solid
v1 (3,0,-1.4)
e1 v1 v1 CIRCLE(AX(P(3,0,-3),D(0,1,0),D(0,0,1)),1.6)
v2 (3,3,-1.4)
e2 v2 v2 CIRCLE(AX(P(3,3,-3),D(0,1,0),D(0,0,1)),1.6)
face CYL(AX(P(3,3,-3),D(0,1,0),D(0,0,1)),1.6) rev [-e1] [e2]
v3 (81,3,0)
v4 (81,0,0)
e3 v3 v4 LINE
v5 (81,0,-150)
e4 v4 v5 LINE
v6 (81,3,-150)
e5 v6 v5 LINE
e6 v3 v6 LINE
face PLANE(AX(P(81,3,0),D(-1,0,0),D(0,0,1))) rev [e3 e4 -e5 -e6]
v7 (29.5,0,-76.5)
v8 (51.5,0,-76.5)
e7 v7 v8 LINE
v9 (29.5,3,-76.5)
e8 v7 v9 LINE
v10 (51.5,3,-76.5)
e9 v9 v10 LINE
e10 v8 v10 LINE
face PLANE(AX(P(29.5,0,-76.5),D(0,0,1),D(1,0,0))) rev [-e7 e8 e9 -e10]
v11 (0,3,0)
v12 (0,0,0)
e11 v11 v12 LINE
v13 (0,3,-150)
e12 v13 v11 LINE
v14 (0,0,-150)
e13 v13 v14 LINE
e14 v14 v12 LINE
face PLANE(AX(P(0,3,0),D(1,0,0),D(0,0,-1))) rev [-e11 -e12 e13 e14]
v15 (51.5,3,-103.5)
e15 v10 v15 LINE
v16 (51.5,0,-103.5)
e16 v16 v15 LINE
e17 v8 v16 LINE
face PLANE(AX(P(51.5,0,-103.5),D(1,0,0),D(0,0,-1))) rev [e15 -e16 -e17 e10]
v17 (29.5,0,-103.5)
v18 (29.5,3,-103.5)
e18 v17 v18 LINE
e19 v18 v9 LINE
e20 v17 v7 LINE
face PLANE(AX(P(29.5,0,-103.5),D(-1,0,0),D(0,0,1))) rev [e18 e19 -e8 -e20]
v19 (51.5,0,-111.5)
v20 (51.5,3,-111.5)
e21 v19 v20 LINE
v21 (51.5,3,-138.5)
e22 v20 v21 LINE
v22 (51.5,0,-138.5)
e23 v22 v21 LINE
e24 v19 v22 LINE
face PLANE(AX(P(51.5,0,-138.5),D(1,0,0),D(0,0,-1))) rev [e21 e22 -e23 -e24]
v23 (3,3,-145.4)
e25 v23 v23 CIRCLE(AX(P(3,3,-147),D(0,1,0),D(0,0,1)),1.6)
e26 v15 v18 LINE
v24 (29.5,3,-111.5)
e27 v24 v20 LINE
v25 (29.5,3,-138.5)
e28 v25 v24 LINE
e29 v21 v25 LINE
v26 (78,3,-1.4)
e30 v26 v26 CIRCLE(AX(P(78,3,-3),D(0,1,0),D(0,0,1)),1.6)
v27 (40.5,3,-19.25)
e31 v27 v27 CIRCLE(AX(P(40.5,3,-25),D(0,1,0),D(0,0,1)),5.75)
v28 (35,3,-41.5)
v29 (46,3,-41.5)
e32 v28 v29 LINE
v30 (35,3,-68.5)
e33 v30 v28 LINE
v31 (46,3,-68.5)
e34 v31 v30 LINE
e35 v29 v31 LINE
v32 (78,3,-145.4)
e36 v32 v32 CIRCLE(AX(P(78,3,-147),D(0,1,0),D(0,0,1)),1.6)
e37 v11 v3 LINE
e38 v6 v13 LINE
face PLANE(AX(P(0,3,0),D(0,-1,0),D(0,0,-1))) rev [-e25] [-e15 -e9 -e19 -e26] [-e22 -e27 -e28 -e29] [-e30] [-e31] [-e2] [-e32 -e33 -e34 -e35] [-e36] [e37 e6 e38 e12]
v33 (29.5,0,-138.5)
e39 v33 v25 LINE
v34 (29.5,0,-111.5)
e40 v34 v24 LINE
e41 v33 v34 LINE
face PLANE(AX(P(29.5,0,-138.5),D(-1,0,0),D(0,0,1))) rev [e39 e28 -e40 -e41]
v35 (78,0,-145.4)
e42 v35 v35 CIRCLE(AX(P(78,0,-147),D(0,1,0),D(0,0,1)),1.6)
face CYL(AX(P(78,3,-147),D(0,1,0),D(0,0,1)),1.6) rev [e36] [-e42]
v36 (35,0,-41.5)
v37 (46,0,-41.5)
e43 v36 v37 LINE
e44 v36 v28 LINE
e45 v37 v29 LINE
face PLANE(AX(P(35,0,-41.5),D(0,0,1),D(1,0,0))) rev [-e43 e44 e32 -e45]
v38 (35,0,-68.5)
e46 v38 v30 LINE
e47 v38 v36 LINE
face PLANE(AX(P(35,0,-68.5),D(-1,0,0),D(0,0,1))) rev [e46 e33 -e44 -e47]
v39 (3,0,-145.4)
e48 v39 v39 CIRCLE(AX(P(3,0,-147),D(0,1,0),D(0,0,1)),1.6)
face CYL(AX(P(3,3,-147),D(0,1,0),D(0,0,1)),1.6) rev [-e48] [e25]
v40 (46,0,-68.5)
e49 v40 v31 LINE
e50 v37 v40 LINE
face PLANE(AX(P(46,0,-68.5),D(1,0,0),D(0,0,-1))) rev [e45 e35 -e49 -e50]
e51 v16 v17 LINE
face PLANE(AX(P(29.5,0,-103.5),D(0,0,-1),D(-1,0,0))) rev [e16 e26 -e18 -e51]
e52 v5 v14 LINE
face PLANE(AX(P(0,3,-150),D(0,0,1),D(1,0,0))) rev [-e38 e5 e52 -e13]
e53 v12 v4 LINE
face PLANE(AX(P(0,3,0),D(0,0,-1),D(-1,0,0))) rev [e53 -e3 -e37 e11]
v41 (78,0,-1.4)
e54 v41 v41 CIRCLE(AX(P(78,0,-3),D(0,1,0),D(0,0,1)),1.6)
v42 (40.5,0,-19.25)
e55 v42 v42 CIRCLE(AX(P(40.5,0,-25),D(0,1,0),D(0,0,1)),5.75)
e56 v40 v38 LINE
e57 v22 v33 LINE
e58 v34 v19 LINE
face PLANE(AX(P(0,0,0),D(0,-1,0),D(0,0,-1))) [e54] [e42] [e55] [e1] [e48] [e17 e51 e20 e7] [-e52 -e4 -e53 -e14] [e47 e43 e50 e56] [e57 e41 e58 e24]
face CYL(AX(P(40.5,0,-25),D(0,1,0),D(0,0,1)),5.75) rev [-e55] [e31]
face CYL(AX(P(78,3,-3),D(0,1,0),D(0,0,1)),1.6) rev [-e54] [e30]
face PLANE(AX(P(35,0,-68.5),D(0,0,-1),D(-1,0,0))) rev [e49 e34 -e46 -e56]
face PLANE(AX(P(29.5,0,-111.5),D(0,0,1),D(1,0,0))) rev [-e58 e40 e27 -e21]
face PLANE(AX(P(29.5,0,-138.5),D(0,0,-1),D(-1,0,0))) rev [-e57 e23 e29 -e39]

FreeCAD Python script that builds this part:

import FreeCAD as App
import Part
import Sketcher
from FreeCAD import Vector
Q = App.Units.Quantity


def add_polygon(sketch, points):
    """Adds a closed chain of lines whose ends are joined by coincident constraints."""
    first, n = sketch.GeometryCount, len(points)
    for a, b in zip(points, points[1:] + points[:1]):
        sketch.addGeometry(Part.LineSegment(App.Vector(*a, 0), App.Vector(*b, 0)), False)
    for i in range(n):
        sketch.addConstraint(Sketcher.Constraint("Coincident", first + i, 2, first + (i + 1) % n, 1))

doc = App.newDocument("Part")
body = doc.addObject("PartDesign::Body", "Body")

sketch1 = body.newObject("Sketcher::SketchObject", "Sketch")
sketch1.AttachmentSupport = (doc.getObject("XZ_Plane"), [""])
sketch1.MapMode = "FlatFace"
add_polygon(sketch1, [(0, -150), (0, 0), (81, 0), (81, -150)])
sketch1.addConstraint(Sketcher.Constraint("Vertical", 0))
sketch1.addConstraint(Sketcher.Constraint("Horizontal", 1))
sketch1.addConstraint(Sketcher.Constraint("Vertical", 2))
sketch1.addConstraint(Sketcher.Constraint("Horizontal", 3))
sketch1.addConstraint(Sketcher.Constraint("Coincident", 0, 2, -1, 1))
sketch1.addConstraint(Sketcher.Constraint("DistanceX", 1, 1, 1, 2, Q("81 mm")))
sketch1.addConstraint(Sketcher.Constraint("DistanceY", 0, 1, 0, 2, Q("150 mm")))
pad1 = body.newObject("PartDesign::Pad", "Pad")
pad1.Profile = sketch1
pad1.Length = 3
pad1.Reversed = True

sketch2 = body.newObject("Sketcher::SketchObject", "Sketch001")
sketch2.AttachmentSupport = (doc.getObject("XZ_Plane"), [""])
sketch2.MapMode = "FlatFace"
sketch2.AttachmentOffset = App.Placement(Vector(0, 0, -3), App.Rotation())
sketch2.addGeometry(Part.Circle(Vector(3, -147, 0), Vector(0, 0, 1), 1.6), False)
sketch2.addGeometry(Part.Circle(Vector(78, -147, 0), Vector(0, 0, 1), 1.6), False)
sketch2.addGeometry(Part.Circle(Vector(78, -3, 0), Vector(0, 0, 1), 1.6), False)
sketch2.addGeometry(Part.Circle(Vector(3, -3, 0), Vector(0, 0, 1), 1.6), False)
sketch2.addConstraint(Sketcher.Constraint("Equal", 0, 1))
sketch2.addConstraint(Sketcher.Constraint("Equal", 1, 2))
sketch2.addConstraint(Sketcher.Constraint("Equal", 2, 3))
sketch2.addConstraint(Sketcher.Constraint("Horizontal", 0, 3, 1, 3))
sketch2.addConstraint(Sketcher.Constraint("Horizontal", 2, 3, 3, 3))
sketch2.addConstraint(Sketcher.Constraint("Vertical", 1, 3, 2, 3))
sketch2.addConstraint(Sketcher.Constraint("Vertical", 0, 3, 3, 3))
sketch2.addConstraint(Sketcher.Constraint("Diameter", 0, Q("3.2 mm")))
sketch2.addConstraint(Sketcher.Constraint("DistanceX", -1, 1, 0, 3, Q("3 mm")))
sketch2.addConstraint(Sketcher.Constraint("DistanceY", 0, 3, -1, 1, Q("147 mm")))
sketch2.addConstraint(Sketcher.Constraint("DistanceX", -1, 1, 1, 3, Q("78 mm")))
sketch2.addConstraint(Sketcher.Constraint("DistanceY", 2, 3, -1, 1, Q("3 mm")))
doc.recompute()
hole = body.newObject("PartDesign::Hole", "Hole")
hole.Profile = sketch2
hole.ThreadType = "None"
hole.Diameter = 3.2
hole.DepthType = "ThroughAll"
hole.Reversed = True

sketch3 = body.newObject("Sketcher::SketchObject", "Sketch002")
sketch3.AttachmentSupport = (doc.getObject("XZ_Plane"), [""])
sketch3.MapMode = "FlatFace"
sketch3.AttachmentOffset = App.Placement(Vector(0, 0, -3), App.Rotation())
sketch3.addGeometry(Part.Circle(Vector(40, -25, 0), Vector(0, 0, 1), 6), False)
add_polygon(sketch3, [(30, -138), (30, -112), (52, -112), (52, -138)])
add_polygon(sketch3, [(30, -104), (30, -76), (52, -76), (52, -104)])
add_polygon(sketch3, [(35, -68), (35, -42), (46, -42), (46, -68)])
sketch3.addConstraint(Sketcher.Constraint("Vertical", 1))
sketch3.addConstraint(Sketcher.Constraint("Horizontal", 2))
sketch3.addConstraint(Sketcher.Constraint("Vertical", 3))
sketch3.addConstraint(Sketcher.Constraint("Horizontal", 4))
sketch3.addConstraint(Sketcher.Constraint("Vertical", 5))
sketch3.addConstraint(Sketcher.Constraint("Horizontal", 6))
sketch3.addConstraint(Sketcher.Constraint("Vertical", 7))
sketch3.addConstraint(Sketcher.Constraint("Horizontal", 8))
sketch3.addConstraint(Sketcher.Constraint("Vertical", 9))
sketch3.addConstraint(Sketcher.Constraint("Horizontal", 10))
sketch3.addConstraint(Sketcher.Constraint("Vertical", 11))
sketch3.addConstraint(Sketcher.Constraint("Horizontal", 12))
sketch3.addConstraint(Sketcher.Constraint("Vertical", 4, 2, 5, 2))
sketch3.addConstraint(Sketcher.Constraint("Vertical", 3, 2, 6, 2))
sketch3.addConstraint(Sketcher.Constraint("Equal", 3, 5))
sketch3.addConstraint(Sketcher.Constraint("Equal", 7, 9))
sketch3.addConstraint(Sketcher.Constraint("Diameter", 0, Q("11.5 mm")))
sketch3.addConstraint(Sketcher.Constraint("DistanceX", 2, 1, 2, 2, Q("22 mm")))
sketch3.addConstraint(Sketcher.Constraint("DistanceX", 10, 1, 10, 2, Q("11 mm")))
sketch3.addConstraint(Sketcher.Constraint("DistanceY", 1, 1, 1, 2, Q("27 mm")))
sketch3.addConstraint(Sketcher.Constraint("DistanceY", 0, 3, -1, 1, Q("25 mm")))
sketch3.addConstraint(Sketcher.Constraint("DistanceX", -1, 1, 9, 2, Q("35 mm")))
sketch3.addConstraint(Sketcher.Constraint("DistanceX", 1, 2, 0, 3, Q("11 mm")))
sketch3.addConstraint(Sketcher.Constraint("DistanceY", 1, 2, 5, 2, Q("35 mm")))
sketch3.addConstraint(Sketcher.Constraint("DistanceY", 5, 2, 9, 2, Q("35 mm")))
sketch3.addConstraint(Sketcher.Constraint("DistanceX", -1, 1, 0, 3, Q("40.5 mm")))
sketch3.addConstraint(Sketcher.Constraint("DistanceY", 1, 2, -1, 1, Q("111.5 mm")))
pocket1 = body.newObject("PartDesign::Pocket", "Pocket")
pocket1.Profile = sketch3
pocket1.Type = "ThroughAll"
pocket1.Reversed = True

doc.recompute()
